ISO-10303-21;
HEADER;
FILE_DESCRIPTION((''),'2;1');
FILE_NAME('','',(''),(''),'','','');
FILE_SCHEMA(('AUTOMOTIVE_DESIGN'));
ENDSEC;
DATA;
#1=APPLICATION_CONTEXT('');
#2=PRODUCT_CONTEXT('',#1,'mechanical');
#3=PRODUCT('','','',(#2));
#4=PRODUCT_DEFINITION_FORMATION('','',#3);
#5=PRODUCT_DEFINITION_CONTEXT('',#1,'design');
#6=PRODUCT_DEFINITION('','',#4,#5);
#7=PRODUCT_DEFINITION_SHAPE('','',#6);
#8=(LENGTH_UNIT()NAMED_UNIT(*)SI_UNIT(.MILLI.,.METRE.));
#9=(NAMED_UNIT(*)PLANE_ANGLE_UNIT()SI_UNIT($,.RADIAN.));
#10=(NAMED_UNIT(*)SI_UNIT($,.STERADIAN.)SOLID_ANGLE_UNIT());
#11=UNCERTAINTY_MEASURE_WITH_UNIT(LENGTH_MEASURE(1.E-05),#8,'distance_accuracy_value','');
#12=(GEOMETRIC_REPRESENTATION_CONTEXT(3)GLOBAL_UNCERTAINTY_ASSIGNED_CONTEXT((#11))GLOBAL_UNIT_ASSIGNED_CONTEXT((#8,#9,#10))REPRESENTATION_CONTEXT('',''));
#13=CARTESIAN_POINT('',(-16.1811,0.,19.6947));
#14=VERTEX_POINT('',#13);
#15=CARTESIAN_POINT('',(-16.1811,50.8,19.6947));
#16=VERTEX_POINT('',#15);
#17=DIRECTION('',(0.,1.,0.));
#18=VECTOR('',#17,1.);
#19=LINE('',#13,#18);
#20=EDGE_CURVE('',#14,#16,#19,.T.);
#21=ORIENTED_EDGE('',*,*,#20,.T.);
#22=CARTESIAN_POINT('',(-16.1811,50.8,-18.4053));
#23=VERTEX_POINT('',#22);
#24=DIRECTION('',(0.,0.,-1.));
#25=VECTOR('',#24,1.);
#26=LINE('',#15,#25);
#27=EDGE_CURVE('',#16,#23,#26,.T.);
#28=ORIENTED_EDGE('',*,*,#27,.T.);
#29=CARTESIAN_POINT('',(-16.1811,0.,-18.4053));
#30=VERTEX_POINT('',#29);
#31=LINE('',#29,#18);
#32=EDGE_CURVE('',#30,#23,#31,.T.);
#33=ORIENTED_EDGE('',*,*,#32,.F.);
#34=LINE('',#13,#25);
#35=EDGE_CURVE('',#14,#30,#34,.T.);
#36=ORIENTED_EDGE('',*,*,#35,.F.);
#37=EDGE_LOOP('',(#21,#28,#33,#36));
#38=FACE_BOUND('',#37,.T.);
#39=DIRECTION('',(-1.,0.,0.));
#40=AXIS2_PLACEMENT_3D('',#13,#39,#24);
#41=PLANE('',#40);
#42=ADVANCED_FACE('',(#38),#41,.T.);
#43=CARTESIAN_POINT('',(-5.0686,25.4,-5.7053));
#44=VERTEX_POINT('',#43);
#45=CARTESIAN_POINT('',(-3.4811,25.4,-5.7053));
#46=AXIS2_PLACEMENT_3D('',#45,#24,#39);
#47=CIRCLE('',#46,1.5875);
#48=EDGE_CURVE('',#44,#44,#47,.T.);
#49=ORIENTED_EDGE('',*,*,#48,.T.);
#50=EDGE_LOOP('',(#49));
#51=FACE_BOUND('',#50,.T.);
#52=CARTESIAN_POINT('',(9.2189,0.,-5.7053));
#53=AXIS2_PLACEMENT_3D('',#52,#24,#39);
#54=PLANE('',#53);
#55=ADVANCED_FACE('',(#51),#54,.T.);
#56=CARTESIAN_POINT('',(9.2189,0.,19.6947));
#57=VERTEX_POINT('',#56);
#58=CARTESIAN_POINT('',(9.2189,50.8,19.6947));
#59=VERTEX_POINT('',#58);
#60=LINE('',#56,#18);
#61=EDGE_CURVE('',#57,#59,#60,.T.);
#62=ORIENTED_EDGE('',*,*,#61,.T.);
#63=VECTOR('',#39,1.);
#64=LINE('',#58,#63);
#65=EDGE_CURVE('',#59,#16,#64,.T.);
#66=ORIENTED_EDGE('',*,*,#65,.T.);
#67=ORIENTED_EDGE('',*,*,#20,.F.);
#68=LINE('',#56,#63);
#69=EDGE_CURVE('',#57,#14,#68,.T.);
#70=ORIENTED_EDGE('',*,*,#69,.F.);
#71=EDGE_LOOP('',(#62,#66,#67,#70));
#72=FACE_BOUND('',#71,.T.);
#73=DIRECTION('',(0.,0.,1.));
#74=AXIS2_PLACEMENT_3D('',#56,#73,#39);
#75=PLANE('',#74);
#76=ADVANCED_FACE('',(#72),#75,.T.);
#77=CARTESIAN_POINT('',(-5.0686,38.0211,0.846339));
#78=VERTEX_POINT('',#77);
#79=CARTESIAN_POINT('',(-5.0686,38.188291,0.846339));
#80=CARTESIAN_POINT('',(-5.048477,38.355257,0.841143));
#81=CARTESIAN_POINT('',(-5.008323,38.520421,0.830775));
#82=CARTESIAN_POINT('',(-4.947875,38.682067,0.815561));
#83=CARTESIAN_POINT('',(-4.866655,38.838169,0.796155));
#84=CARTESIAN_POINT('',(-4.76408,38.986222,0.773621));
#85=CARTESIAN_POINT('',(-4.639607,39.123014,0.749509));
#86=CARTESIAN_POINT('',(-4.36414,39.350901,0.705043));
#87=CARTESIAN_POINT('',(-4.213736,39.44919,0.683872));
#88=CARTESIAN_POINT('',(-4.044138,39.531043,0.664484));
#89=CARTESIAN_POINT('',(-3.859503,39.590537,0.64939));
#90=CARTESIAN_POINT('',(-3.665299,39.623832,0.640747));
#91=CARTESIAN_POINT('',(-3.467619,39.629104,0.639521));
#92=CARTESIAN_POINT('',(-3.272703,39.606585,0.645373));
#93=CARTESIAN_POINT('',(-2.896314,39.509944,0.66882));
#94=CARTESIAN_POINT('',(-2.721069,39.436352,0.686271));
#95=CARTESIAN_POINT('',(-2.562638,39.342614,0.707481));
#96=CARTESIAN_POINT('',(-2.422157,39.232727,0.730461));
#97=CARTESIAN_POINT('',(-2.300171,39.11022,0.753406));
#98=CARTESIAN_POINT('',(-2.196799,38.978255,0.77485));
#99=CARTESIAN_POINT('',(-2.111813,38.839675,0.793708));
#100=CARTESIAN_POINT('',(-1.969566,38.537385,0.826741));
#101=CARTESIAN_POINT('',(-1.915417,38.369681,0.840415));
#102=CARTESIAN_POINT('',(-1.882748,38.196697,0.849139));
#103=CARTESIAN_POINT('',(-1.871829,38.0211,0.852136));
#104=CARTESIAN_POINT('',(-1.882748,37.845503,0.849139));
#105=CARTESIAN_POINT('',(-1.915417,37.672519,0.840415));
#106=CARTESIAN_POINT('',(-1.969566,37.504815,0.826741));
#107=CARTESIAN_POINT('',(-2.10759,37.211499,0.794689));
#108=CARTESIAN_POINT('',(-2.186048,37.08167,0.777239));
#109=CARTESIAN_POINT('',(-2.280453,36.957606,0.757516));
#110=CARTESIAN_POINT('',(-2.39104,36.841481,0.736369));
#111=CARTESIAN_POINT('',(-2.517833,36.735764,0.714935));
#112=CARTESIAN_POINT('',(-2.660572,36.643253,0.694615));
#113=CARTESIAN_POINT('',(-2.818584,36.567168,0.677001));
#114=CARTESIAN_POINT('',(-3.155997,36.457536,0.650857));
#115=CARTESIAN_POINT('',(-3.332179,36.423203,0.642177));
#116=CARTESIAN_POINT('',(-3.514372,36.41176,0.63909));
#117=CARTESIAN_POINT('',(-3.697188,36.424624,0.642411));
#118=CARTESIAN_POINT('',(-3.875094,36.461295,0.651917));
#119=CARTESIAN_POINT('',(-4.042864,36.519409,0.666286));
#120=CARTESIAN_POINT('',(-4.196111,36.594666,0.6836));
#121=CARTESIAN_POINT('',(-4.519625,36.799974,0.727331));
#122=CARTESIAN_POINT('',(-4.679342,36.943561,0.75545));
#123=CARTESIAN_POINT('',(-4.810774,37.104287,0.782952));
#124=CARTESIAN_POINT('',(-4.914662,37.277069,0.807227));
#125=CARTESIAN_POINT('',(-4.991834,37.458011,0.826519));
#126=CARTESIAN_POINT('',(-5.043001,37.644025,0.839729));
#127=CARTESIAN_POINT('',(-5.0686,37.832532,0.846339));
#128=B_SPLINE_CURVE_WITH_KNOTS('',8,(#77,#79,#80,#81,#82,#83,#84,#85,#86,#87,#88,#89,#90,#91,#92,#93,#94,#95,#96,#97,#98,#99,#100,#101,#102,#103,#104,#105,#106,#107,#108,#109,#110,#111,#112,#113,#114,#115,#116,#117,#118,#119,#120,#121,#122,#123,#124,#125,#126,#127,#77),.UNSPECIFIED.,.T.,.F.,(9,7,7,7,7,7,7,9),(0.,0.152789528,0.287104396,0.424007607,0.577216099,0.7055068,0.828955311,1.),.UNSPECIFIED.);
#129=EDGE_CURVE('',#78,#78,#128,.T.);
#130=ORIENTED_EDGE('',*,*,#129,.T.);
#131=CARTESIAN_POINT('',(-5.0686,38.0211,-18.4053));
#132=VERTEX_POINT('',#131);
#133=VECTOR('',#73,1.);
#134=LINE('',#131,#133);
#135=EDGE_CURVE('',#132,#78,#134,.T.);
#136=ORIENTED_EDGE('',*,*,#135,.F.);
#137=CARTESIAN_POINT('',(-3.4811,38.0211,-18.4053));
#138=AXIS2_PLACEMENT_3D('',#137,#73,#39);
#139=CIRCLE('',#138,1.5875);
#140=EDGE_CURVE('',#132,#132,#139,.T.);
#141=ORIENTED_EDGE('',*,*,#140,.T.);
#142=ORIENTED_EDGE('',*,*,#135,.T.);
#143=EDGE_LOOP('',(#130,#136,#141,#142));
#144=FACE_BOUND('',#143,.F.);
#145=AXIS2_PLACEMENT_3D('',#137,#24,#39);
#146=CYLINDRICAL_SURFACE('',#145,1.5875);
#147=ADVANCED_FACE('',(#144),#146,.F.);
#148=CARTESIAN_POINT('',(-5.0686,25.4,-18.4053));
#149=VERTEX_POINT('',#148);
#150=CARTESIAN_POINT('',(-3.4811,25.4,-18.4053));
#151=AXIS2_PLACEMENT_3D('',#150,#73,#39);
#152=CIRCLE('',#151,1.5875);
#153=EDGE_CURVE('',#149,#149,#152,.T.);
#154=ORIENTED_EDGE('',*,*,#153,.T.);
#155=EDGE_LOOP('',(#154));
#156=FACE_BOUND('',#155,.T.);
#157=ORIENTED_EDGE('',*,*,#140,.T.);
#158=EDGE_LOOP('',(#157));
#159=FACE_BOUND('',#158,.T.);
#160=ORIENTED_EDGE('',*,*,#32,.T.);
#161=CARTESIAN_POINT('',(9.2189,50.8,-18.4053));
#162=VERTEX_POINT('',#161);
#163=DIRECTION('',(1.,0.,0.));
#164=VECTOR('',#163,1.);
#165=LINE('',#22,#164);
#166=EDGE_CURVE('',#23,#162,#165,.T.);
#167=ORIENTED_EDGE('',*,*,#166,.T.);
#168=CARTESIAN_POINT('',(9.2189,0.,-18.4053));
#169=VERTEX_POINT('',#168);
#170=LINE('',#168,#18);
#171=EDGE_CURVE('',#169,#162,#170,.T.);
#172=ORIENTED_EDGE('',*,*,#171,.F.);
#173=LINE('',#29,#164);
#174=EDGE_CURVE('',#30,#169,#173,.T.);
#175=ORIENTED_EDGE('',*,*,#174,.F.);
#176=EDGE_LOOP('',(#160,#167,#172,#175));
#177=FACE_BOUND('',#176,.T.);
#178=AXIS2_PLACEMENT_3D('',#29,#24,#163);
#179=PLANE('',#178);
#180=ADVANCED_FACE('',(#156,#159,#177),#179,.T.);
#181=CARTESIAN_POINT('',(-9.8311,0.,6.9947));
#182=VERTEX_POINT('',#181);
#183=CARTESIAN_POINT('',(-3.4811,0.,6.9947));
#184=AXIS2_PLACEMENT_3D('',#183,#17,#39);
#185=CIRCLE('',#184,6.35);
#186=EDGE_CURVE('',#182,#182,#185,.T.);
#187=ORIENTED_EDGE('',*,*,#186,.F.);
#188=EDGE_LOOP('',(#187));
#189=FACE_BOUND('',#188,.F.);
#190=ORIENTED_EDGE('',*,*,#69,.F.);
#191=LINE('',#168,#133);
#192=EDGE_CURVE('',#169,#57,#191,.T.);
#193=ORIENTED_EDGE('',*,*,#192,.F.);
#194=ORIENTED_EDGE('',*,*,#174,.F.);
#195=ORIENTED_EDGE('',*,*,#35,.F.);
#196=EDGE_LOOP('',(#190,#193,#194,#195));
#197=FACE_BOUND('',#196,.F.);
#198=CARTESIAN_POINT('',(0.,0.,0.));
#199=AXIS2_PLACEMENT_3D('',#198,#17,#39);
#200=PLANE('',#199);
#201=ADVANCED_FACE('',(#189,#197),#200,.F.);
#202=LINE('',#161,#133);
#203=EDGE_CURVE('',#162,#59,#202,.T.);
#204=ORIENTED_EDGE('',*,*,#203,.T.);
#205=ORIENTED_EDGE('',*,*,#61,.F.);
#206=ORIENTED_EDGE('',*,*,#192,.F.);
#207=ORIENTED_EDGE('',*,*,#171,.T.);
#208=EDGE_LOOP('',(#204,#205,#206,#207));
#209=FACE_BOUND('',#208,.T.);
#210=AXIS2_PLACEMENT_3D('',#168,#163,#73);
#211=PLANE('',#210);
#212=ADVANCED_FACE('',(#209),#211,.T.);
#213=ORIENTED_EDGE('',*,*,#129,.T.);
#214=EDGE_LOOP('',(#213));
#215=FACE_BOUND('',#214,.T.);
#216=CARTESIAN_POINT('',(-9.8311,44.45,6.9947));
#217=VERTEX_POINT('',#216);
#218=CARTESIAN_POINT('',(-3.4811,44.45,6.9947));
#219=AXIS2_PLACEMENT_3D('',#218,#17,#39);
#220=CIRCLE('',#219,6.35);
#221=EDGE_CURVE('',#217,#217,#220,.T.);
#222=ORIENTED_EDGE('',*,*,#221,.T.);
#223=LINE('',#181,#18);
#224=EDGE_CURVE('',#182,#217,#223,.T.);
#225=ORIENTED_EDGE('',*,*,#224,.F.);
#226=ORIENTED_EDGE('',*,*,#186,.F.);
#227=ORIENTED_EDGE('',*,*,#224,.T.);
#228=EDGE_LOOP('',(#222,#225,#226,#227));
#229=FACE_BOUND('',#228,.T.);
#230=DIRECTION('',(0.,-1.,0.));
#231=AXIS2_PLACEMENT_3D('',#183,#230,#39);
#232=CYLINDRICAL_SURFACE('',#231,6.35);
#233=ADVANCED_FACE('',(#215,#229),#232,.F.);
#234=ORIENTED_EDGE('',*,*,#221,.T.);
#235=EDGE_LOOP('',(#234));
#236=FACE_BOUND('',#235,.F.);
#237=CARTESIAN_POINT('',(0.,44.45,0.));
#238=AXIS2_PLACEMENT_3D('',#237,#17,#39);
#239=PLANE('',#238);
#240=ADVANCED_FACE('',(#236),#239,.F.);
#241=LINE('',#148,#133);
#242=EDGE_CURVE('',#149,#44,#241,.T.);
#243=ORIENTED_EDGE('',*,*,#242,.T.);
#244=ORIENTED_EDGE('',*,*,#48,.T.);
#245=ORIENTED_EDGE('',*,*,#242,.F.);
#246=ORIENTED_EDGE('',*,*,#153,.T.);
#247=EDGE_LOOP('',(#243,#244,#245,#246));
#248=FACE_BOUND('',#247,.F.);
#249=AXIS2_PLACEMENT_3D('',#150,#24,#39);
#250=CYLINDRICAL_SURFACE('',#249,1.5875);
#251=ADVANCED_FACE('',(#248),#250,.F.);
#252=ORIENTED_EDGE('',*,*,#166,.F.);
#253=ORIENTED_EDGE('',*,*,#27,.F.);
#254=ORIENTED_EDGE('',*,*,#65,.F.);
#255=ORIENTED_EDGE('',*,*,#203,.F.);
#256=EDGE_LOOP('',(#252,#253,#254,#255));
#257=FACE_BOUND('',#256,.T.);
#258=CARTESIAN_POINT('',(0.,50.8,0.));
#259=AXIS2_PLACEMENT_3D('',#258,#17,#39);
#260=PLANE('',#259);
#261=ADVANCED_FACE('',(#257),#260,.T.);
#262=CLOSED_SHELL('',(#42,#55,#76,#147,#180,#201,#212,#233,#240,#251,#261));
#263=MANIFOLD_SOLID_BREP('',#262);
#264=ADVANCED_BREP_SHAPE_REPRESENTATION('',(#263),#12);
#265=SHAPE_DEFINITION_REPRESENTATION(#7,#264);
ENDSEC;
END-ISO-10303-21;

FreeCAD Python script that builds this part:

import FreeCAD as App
import Part
import Sketcher

V = App.Vector
Q = App.Units.Quantity

doc = App.newDocument("Part")
body = doc.addObject("PartDesign::Body", "Body")

# Sketch on XZ plane
sketch1 = doc.addObject("Sketcher::SketchObject", "Sketch")
body.addObject(sketch1)
sketch1.AttachmentSupport = (doc.XZ_Plane, [""])
sketch1.MapMode = "FlatFace"
sketch1.addGeometry([
    Part.LineSegment(V(-16.1811, 19.6947, 0), V(9.2189, 19.6947, 0)),
    Part.LineSegment(V(9.2189, 19.6947, 0), V(9.2189, -18.4053, 0)),
    Part.LineSegment(V(9.2189, -18.4053, 0), V(-16.1811, -18.4053, 0)),
    Part.LineSegment(V(-16.1811, -18.4053, 0), V(-16.1811, 19.6947, 0)),
], False)
sketch1.addConstraint([
    Sketcher.Constraint("Coincident", 0, 2, 1, 1),
    Sketcher.Constraint("Coincident", 1, 2, 2, 1),
    Sketcher.Constraint("Coincident", 2, 2, 3, 1),
    Sketcher.Constraint("Coincident", 3, 2, 0, 1),
    Sketcher.Constraint("Horizontal", 0),
    Sketcher.Constraint("Vertical", 1),
    Sketcher.Constraint("Horizontal", 2),
    Sketcher.Constraint("Vertical", 3),
    Sketcher.Constraint("DistanceX", 0, 1, 0, 2, Q("1 in")),
    Sketcher.Constraint("DistanceY", 1, 2, 1, 1, Q("1.5 in")),
    Sketcher.Constraint("DistanceX", -1, 1, 0, 2, Q("9.219 mm")),
    Sketcher.Constraint("DistanceY", -1, 1, 0, 2, Q("19.6947 mm")),
])
pad1 = doc.addObject("PartDesign::Pad", "Pad")
body.addObject(pad1)
pad1.Profile = sketch1
pad1.Length = Q("2 in")
pad1.Reversed = True

# Sketch on XZ plane
sketch2 = doc.addObject("Sketcher::SketchObject", "Sketch001")
body.addObject(sketch2)
sketch2.AttachmentSupport = (doc.XZ_Plane, [""])
sketch2.MapMode = "FlatFace"
sketch2.addGeometry(Part.Circle(V(-3.4811, 6.9947, 0), V(0, 0, 1), 6.35), False)
sketch2.addConstraint([
    Sketcher.Constraint("Diameter", 0, Q("0.5 in")),
    Sketcher.Constraint("DistanceX", 0, 3, -1, 1, Q("3.481 mm")),
    Sketcher.Constraint("DistanceY", -1, 1, 0, 3, Q("6.9947 mm")),
])
pocket1 = doc.addObject("PartDesign::Pocket", "Pocket")
body.addObject(pocket1)
pocket1.Profile = sketch2
pocket1.Length = Q("1.75 in")

# Sketch on XY plane
sketch3 = doc.addObject("Sketcher::SketchObject", "Sketch002")
body.addObject(sketch3)
sketch3.AttachmentSupport = (doc.XY_Plane, [""])
sketch3.MapMode = "FlatFace"
sketch3.AttachmentOffset = App.Placement(V(0, 0, -18.4053), App.Rotation())
sketch3.addGeometry(Part.Circle(V(-3.4811, 25.4, 0), V(0, 0, 1), 1.5875), False)
sketch3.addConstraint([
    Sketcher.Constraint("Diameter", 0, Q("0.125 in")),
    Sketcher.Constraint("DistanceY", -1, 1, 0, 3, Q("1 in")),
    Sketcher.Constraint("DistanceX", 0, 3, -1, 1, Q("3.481 mm")),
])
pocket2 = doc.addObject("PartDesign::Pocket", "Pocket001")
body.addObject(pocket2)
pocket2.Profile = sketch3
pocket2.Length = Q("0.5 in")
pocket2.Reversed = True

# Sketch on XY plane
sketch4 = doc.addObject("Sketcher::SketchObject", "Sketch003")
body.addObject(sketch4)
sketch4.AttachmentSupport = (doc.XY_Plane, [""])
sketch4.MapMode = "FlatFace"
sketch4.AttachmentOffset = App.Placement(V(0, 0, -18.4053), App.Rotation())
sketch4.addGeometry(Part.Circle(V(-3.4811, 38.0211, 0), V(0, 0, 1), 1.5875), False)
sketch4.addConstraint([
    Sketcher.Constraint("Diameter", 0, Q("0.125 in")),
    Sketcher.Constraint("DistanceY", -1, 1, 0, 3, Q("1.4969 in")),
    Sketcher.Constraint("DistanceX", 0, 3, -1, 1, Q("3.481 mm")),
])
pocket3 = doc.addObject("PartDesign::Pocket", "Pocket002")
body.addObject(pocket3)
pocket3.Profile = sketch4
pocket3.Length = Q("1 in")
pocket3.Reversed = True

doc.recompute()
